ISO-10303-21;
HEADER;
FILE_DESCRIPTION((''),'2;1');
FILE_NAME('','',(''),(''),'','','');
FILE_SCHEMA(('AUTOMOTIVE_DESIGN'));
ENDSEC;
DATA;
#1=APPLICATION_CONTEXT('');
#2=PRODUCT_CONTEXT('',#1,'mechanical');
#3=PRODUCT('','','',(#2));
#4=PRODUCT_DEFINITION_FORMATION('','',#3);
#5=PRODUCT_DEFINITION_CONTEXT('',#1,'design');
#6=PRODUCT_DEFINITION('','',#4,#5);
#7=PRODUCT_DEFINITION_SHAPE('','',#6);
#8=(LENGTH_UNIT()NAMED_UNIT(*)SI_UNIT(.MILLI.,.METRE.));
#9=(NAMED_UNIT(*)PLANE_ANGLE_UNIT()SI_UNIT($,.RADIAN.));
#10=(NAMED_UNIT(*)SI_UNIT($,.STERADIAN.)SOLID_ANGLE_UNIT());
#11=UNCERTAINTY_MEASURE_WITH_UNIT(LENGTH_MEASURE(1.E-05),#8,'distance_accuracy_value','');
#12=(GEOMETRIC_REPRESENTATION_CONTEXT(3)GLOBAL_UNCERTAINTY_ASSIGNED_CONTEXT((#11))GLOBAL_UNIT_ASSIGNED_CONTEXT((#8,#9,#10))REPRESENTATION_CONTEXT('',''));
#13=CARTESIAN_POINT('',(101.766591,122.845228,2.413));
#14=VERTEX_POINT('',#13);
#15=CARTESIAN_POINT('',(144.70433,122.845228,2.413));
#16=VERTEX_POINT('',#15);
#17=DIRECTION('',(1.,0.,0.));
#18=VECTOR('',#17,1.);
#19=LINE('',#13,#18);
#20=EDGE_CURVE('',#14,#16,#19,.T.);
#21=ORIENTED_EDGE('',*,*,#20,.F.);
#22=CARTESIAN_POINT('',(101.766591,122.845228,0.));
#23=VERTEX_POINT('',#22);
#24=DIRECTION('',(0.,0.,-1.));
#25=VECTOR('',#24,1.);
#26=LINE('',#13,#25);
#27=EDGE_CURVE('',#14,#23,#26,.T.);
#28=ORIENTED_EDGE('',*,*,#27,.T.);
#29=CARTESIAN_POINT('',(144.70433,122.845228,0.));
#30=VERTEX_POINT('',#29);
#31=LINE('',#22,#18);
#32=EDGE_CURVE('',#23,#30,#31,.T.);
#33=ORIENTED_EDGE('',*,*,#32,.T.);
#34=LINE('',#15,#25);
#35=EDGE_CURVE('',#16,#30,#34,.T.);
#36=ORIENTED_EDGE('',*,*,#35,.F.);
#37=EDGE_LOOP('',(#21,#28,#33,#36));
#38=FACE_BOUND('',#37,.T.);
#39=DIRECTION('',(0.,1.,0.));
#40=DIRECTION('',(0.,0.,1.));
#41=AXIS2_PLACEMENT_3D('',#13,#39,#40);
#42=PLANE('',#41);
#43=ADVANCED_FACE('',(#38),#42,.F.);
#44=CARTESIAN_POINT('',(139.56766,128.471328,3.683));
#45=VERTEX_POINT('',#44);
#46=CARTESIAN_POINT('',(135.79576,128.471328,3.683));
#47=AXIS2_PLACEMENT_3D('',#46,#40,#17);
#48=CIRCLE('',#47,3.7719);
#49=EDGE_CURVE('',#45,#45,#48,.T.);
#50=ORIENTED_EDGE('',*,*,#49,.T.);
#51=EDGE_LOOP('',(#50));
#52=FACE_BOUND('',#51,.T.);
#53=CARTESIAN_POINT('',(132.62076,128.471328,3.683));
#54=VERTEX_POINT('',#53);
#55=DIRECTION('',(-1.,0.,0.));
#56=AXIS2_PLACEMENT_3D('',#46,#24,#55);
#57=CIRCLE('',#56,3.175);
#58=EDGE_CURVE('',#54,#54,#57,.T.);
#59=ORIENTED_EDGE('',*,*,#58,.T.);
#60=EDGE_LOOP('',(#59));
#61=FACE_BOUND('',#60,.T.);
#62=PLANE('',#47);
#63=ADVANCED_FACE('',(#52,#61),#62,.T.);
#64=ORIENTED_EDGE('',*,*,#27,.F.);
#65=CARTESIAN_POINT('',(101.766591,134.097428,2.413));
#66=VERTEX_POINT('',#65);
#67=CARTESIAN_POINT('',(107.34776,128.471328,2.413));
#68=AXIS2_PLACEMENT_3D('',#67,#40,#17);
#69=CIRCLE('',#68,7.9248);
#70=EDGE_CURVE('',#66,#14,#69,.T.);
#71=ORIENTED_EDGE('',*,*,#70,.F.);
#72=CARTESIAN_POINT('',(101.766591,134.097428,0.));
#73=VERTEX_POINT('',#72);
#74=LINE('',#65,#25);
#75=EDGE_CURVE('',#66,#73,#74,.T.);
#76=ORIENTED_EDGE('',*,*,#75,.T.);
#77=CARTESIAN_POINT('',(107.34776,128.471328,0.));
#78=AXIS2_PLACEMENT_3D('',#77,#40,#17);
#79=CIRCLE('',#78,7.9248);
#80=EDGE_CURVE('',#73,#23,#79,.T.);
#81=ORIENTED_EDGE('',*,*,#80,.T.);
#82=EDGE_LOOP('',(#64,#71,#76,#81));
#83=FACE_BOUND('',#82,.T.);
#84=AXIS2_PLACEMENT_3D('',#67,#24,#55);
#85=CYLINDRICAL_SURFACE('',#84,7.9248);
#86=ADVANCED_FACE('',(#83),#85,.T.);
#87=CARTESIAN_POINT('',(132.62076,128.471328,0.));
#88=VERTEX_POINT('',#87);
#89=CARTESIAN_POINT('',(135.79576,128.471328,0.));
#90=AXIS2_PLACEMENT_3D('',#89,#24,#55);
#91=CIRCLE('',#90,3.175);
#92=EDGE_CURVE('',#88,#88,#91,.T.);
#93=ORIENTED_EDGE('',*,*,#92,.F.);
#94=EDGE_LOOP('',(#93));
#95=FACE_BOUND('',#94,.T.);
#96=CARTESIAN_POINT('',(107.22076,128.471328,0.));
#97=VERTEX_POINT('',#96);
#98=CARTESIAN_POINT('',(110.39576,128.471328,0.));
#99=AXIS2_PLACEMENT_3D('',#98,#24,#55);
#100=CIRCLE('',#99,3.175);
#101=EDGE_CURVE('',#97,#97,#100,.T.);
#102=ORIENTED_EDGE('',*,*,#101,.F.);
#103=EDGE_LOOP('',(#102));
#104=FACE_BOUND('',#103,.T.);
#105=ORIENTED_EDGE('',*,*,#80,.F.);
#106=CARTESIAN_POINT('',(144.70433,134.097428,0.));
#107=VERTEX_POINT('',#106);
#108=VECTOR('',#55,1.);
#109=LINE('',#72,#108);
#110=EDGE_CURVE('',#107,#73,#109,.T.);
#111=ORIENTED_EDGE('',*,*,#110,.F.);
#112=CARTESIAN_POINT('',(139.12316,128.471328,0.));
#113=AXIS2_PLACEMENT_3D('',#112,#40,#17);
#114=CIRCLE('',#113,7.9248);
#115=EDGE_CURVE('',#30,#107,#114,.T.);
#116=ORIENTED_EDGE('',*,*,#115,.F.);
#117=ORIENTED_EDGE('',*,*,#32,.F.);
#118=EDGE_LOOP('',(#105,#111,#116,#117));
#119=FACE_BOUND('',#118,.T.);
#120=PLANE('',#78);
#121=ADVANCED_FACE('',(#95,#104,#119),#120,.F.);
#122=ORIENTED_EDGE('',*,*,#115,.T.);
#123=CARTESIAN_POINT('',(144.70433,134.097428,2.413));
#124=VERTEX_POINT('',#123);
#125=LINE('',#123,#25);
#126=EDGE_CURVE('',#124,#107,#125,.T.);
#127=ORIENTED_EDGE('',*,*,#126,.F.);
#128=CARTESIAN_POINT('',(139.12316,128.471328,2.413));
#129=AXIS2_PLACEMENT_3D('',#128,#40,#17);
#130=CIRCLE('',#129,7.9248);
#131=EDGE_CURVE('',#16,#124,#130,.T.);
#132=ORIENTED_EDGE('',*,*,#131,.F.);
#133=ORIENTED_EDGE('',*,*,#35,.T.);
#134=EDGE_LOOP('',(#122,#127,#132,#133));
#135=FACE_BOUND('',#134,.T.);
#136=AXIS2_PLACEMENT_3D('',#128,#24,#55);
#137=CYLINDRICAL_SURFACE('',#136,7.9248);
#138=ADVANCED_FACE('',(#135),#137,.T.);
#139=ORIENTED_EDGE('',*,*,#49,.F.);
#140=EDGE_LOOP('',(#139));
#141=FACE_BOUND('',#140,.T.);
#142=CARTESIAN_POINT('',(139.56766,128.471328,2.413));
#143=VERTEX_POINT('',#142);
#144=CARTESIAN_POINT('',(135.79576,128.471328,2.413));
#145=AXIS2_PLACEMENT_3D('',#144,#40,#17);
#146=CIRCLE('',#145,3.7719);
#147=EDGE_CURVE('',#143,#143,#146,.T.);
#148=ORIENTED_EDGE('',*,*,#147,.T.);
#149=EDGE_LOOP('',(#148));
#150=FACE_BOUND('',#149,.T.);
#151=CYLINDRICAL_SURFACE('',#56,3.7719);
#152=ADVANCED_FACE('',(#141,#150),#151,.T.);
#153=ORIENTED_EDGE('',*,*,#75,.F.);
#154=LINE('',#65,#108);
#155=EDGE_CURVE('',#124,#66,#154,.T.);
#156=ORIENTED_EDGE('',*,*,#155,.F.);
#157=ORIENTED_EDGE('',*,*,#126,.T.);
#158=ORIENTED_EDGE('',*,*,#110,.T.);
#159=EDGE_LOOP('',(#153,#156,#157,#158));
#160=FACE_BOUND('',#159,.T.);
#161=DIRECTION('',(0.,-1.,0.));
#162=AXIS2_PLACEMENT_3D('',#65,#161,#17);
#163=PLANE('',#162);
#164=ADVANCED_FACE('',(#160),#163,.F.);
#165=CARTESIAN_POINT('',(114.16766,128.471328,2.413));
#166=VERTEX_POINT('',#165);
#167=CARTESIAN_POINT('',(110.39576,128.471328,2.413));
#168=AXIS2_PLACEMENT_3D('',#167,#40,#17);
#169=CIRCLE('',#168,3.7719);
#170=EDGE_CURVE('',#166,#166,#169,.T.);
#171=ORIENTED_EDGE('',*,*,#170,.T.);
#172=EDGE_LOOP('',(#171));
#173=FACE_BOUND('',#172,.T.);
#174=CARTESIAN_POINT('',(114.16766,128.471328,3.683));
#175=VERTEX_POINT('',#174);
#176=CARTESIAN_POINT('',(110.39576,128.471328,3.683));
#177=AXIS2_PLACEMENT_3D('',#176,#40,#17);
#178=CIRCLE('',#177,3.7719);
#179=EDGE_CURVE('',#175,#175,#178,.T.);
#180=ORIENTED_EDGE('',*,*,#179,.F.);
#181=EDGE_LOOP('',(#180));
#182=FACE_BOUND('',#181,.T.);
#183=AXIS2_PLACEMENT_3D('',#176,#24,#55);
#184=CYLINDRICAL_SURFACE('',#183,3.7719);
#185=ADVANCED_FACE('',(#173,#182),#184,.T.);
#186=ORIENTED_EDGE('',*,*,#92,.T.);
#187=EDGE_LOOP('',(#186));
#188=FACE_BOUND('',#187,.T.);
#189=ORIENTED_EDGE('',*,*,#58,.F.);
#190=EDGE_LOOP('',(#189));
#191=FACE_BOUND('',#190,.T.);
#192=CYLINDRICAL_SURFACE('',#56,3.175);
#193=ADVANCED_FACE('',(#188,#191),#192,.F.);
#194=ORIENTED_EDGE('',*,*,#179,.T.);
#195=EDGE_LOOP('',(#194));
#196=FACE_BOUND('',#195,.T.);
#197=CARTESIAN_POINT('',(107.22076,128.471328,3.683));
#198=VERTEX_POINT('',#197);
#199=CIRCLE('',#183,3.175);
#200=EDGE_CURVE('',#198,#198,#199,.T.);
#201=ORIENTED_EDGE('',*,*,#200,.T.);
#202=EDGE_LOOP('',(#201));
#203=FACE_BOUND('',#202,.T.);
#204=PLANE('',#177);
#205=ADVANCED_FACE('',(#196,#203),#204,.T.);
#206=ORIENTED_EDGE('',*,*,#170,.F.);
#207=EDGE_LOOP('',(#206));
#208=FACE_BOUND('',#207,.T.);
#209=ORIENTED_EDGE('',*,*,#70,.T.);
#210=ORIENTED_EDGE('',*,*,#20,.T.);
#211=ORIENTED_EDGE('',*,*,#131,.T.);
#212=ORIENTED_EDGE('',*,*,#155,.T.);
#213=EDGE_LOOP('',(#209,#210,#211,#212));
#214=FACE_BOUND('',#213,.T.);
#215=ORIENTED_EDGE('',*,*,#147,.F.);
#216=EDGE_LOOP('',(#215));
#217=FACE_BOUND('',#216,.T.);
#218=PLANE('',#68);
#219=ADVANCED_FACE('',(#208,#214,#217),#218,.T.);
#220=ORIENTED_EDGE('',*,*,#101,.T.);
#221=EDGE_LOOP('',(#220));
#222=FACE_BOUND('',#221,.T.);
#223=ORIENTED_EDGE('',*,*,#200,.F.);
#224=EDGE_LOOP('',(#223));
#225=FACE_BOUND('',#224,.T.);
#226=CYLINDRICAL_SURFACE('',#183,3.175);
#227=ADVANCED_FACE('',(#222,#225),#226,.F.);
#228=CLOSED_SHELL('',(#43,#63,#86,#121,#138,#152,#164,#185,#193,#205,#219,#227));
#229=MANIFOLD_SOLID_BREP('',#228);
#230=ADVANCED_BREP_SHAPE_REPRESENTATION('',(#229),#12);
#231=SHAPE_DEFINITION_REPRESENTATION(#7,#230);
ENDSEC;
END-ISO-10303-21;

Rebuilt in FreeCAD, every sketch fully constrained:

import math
import FreeCAD as App
import Part
import Sketcher

V = App.Vector
Q = App.Units.Quantity

doc = App.newDocument("Part")
body = doc.addObject("PartDesign::Body", "Body")

# Sketch on XY plane
sketch1 = body.newObject("Sketcher::SketchObject", "Sketch")
sketch1.AttachmentSupport = (doc.getObject("XY_Plane"), [""])
sketch1.MapMode = "FlatFace"
sketch1.addGeometry(Part.LineSegment(V(145, 134, 0), V(102, 134, 0)), False)
sketch1.addGeometry(Part.ArcOfCircle(Part.Circle(V(107, 128, 0), V(0, 0, 1), 8), math.radians(135), math.radians(225)), False)
sketch1.addGeometry(Part.LineSegment(V(102, 123, 0), V(145, 123, 0)), False)
sketch1.addGeometry(Part.ArcOfCircle(Part.Circle(V(139, 128, 0), V(0, 0, 1), 8), math.radians(-45), math.radians(45)), False)
sketch1.addConstraint(Sketcher.Constraint("Coincident", 0, 2, 1, 1))
sketch1.addConstraint(Sketcher.Constraint("Coincident", 1, 2, 2, 1))
sketch1.addConstraint(Sketcher.Constraint("Coincident", 2, 2, 3, 1))
sketch1.addConstraint(Sketcher.Constraint("Coincident", 3, 2, 0, 1))
sketch1.addConstraint(Sketcher.Constraint("Horizontal", 0))
sketch1.addConstraint(Sketcher.Constraint("Horizontal", 2))
sketch1.addConstraint(Sketcher.Constraint("Equal", 1, 3))
sketch1.addConstraint(Sketcher.Constraint("Horizontal", 1, 3, 3, 3))
sketch1.addConstraint(Sketcher.Constraint("Vertical", 0, 2, 1, 2))
sketch1.addConstraint(Sketcher.Constraint("Radius", 1, Q("0.312 in")))
sketch1.addConstraint(Sketcher.Constraint("DistanceX", 1, 3, 3, 3, Q("1.251 in")))
sketch1.addConstraint(Sketcher.Constraint("DistanceY", 1, 2, 0, 2, Q("0.443 in")))
sketch1.addConstraint(Sketcher.Constraint("DistanceX", -1, 1, 1, 3, Q("107.34776 mm")))
sketch1.addConstraint(Sketcher.Constraint("DistanceY", -1, 1, 1, 3, Q("128.471328 mm")))
pad1 = body.newObject("PartDesign::Pad", "Pad")
pad1.Profile = sketch1
pad1.Length = Q("0.095 in")

# Sketch on XY plane
sketch2 = body.newObject("Sketcher::SketchObject", "Sketch001")
sketch2.AttachmentSupport = (doc.getObject("XY_Plane"), [""])
sketch2.MapMode = "FlatFace"
sketch2.AttachmentOffset = App.Placement(V(0, 0, 0.095 * 25.4), App.Rotation())
sketch2.addGeometry(Part.Circle(V(135.8, 128.5, 0), V(0, 0, 1), 3.8), False)
sketch2.addGeometry(Part.Circle(V(110.4, 128.5, 0), V(0, 0, 1), 3.8), False)
sketch2.addConstraint(Sketcher.Constraint("Equal", 0, 1))
sketch2.addConstraint(Sketcher.Constraint("Horizontal", 0, 3, 1, 3))
sketch2.addConstraint(Sketcher.Constraint("Diameter", 0, Q("0.297 in")))
sketch2.addConstraint(Sketcher.Constraint("DistanceX", 1, 3, 0, 3, Q("1 in")))
sketch2.addConstraint(Sketcher.Constraint("DistanceX", -1, 1, 0, 3, Q("135.79576 mm")))
sketch2.addConstraint(Sketcher.Constraint("DistanceY", -1, 1, 0, 3, Q("128.471328 mm")))
pad2 = body.newObject("PartDesign::Pad", "Pad001")
pad2.Profile = sketch2
pad2.Length = Q("0.05 in")

# Sketch on XY plane
sketch3 = body.newObject("Sketcher::SketchObject", "Sketch002")
sketch3.AttachmentSupport = (doc.getObject("XY_Plane"), [""])
sketch3.MapMode = "FlatFace"
sketch3.addGeometry(Part.Circle(V(135.8, 128.5, 0), V(0, 0, 1), 3.2), False)
sketch3.addGeometry(Part.Circle(V(110.4, 128.5, 0), V(0, 0, 1), 3.2), False)
sketch3.addConstraint(Sketcher.Constraint("Equal", 0, 1))
sketch3.addConstraint(Sketcher.Constraint("Horizontal", 0, 3, 1, 3))
sketch3.addConstraint(Sketcher.Constraint("Diameter", 0, Q("0.25 in")))
sketch3.addConstraint(Sketcher.Constraint("DistanceX", 1, 3, 0, 3, Q("1 in")))
sketch3.addConstraint(Sketcher.Constraint("DistanceX", -1, 1, 0, 3, Q("135.79576 mm")))
sketch3.addConstraint(Sketcher.Constraint("DistanceY", -1, 1, 0, 3, Q("128.471328 mm")))
pocket1 = body.newObject("PartDesign::Pocket", "Pocket")
pocket1.Profile = sketch3
pocket1.Type = "ThroughAll"
pocket1.Reversed = True

doc.recompute()
